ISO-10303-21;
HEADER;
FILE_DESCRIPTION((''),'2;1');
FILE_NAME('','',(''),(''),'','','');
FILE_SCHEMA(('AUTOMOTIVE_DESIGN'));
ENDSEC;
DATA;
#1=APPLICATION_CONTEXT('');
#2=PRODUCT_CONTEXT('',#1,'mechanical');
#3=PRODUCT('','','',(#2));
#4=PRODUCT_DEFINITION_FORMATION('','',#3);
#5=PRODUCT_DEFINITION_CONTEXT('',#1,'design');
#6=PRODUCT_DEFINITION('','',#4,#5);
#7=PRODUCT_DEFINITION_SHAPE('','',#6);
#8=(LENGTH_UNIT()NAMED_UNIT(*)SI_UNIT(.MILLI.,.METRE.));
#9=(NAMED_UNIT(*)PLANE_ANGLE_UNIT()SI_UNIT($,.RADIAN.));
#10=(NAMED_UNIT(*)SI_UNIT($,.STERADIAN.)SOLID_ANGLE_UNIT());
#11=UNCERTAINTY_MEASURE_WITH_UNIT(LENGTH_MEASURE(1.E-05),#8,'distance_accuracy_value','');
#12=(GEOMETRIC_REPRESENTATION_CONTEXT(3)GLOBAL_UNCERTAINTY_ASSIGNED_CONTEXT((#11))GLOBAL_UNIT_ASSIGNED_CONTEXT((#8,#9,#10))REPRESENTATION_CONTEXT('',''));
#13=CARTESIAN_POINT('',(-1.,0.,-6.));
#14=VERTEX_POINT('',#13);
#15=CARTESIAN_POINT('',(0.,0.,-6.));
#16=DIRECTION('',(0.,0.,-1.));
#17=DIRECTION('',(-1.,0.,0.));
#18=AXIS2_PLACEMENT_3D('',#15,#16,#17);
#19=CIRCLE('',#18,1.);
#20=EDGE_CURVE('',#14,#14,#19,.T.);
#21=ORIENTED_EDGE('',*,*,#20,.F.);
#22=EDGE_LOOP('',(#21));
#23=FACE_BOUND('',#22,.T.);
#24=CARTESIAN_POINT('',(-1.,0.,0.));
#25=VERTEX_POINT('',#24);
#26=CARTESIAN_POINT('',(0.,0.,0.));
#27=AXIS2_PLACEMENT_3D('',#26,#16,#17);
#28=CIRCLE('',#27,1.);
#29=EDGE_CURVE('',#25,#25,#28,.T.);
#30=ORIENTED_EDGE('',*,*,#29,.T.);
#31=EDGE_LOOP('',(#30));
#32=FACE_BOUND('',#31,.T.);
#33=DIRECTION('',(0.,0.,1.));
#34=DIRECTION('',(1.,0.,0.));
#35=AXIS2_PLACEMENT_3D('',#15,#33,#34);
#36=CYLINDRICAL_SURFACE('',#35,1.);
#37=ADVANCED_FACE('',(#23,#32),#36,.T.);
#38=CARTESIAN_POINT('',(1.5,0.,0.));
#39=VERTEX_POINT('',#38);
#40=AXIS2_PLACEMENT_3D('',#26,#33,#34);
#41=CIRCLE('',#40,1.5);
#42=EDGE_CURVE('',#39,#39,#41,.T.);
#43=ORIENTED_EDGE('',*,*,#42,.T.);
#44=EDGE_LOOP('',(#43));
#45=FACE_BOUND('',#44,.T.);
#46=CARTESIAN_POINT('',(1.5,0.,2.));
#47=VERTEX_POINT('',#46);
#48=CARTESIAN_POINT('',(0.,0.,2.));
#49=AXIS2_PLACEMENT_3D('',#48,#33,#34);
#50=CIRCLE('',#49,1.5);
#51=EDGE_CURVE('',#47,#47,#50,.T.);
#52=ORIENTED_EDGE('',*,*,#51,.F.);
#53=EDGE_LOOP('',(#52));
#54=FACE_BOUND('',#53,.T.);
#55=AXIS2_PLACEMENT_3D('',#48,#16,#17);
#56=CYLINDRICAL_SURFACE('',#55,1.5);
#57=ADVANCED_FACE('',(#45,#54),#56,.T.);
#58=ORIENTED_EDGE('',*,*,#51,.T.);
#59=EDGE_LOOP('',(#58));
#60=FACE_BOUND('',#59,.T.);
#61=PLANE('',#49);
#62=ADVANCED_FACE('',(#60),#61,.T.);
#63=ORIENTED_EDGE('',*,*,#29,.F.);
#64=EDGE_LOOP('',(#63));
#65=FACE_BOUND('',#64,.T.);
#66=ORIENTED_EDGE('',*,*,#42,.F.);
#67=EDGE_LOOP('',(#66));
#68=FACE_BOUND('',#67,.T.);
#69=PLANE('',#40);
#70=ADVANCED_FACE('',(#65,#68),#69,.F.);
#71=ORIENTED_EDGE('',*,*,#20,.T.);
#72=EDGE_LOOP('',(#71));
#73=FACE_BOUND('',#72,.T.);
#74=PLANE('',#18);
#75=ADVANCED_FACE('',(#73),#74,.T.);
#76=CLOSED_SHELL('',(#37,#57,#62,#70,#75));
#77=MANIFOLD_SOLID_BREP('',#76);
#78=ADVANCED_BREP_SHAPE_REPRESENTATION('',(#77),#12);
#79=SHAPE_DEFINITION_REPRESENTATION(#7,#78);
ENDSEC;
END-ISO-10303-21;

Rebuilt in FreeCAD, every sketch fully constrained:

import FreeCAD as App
import Part
import Sketcher

doc = App.newDocument("Part")
params = doc.addObject("Spreadsheet::Sheet", "Params")
for row, (alias, value) in enumerate([
    ("sketch1_diameter", "3 mm"),
    ("pad1_length", "2 mm"),
    ("sketch2_diameter", "2 mm"),
    ("pad2_length", "6 mm"),
], start=1):
    params.set(f"A{row}", alias)
    params.set(f"B{row}", "=" + value)
    params.setAlias(f"B{row}", alias)

body = doc.addObject("PartDesign::Body", "Body")

sketch1 = doc.addObject("Sketcher::SketchObject", "Sketch")
body.addObject(sketch1)
sketch1.AttachmentSupport = (doc.XY_Plane, [""])
sketch1.MapMode = "FlatFace"
sketch1.addGeometry(Part.Circle(App.Vector(0, 0, 0), App.Vector(0, 0, 1), 1.5), False)
sketch1.addConstraint([
    Sketcher.Constraint("Coincident", 0, 3, -1, 1),
    Sketcher.Constraint("Diameter", 0, 3.0),
])
sketch1.setExpression("Constraints[1]", "Params.sketch1_diameter")
pad1 = doc.addObject("PartDesign::Pad", "Pad")
body.addObject(pad1)
pad1.Profile = sketch1
pad1.setExpression("Length", "Params.pad1_length")

sketch2 = doc.addObject("Sketcher::SketchObject", "Sketch001")
body.addObject(sketch2)
sketch2.AttachmentSupport = (doc.XY_Plane, [""])
sketch2.MapMode = "FlatFace"
sketch2.addGeometry(Part.Circle(App.Vector(0, 0, 0), App.Vector(0, 0, 1), 1), False)
sketch2.addConstraint([
    Sketcher.Constraint("Coincident", 0, 3, -1, 1),
    Sketcher.Constraint("Diameter", 0, 2.0),
])
sketch2.setExpression("Constraints[1]", "Params.sketch2_diameter")
pad2 = doc.addObject("PartDesign::Pad", "Pad001")
body.addObject(pad2)
pad2.Profile = sketch2
pad2.setExpression("Length", "Params.pad2_length")
pad2.Reversed = True

doc.recompute()
